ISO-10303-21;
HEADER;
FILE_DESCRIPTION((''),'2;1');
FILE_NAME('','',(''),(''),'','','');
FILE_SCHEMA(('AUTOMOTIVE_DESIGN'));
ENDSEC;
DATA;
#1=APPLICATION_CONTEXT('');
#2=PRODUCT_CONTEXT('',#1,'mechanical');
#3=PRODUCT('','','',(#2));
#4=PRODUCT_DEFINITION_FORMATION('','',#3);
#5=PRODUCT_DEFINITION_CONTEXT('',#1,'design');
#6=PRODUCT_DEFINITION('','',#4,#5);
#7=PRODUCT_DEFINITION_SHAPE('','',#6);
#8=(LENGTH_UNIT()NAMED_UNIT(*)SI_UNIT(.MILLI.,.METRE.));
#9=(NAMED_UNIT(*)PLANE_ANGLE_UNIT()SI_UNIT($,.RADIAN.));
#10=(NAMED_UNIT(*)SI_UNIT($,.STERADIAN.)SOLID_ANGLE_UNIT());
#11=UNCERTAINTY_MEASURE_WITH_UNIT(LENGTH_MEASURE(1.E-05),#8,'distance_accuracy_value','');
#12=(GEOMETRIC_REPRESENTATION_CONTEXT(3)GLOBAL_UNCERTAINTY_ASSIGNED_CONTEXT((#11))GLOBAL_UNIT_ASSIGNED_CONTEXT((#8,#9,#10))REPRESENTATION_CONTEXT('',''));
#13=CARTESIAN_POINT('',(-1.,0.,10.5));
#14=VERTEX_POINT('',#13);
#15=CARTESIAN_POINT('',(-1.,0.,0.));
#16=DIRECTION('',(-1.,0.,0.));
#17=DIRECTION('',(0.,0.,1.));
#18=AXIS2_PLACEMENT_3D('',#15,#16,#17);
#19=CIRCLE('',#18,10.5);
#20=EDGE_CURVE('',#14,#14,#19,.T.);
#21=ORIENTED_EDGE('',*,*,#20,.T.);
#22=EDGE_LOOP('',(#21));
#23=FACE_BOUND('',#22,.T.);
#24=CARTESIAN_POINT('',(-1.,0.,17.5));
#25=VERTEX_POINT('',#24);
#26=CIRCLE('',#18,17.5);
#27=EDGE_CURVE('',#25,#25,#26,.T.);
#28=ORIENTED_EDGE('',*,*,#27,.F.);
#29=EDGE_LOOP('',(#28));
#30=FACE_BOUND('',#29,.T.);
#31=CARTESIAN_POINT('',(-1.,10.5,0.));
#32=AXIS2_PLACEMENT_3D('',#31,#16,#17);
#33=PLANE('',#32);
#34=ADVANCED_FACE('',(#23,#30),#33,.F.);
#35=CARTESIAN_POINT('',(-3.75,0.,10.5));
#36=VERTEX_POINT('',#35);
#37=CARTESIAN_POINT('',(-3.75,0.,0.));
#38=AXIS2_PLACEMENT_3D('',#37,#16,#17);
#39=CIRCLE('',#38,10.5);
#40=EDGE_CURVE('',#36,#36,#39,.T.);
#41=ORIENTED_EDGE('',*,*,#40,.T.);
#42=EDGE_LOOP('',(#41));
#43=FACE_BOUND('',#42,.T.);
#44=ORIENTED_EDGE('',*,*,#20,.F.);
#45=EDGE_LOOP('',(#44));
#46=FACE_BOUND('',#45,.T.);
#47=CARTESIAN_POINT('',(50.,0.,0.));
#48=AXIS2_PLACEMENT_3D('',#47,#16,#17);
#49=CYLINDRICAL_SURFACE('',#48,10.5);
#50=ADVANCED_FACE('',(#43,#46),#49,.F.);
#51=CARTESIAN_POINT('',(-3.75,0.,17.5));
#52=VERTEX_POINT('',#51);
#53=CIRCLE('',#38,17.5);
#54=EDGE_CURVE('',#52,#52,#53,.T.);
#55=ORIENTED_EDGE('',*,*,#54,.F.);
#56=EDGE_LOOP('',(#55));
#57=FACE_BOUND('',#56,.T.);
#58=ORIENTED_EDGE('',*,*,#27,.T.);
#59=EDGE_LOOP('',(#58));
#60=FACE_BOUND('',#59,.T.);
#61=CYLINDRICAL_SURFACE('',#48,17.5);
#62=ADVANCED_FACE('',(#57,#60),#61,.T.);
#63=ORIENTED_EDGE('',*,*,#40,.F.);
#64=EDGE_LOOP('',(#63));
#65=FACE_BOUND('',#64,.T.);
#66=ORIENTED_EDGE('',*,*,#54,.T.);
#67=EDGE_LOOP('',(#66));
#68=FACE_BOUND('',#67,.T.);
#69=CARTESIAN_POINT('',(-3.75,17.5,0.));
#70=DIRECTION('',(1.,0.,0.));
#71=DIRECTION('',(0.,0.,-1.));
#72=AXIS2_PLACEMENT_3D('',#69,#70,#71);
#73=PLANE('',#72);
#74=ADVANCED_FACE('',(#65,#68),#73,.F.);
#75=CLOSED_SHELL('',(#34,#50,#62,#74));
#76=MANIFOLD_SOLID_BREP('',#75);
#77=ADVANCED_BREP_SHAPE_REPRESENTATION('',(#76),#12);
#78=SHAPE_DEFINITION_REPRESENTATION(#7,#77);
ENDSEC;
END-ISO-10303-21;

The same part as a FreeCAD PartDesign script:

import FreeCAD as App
import Part
import Sketcher

V = App.Vector


def add_polygon(sketch, points):
    """Adds a closed chain of lines whose ends are joined by coincident constraints."""
    first, n = sketch.GeometryCount, len(points)
    for a, b in zip(points, points[1:] + points[:1]):
        sketch.addGeometry(Part.LineSegment(App.Vector(*a, 0), App.Vector(*b, 0)), False)
    for i in range(n):
        sketch.addConstraint(Sketcher.Constraint("Coincident", first + i, 2, first + (i + 1) % n, 1))

doc = App.newDocument("Part")
params = doc.addObject("Spreadsheet::Sheet", "Params")
for row, (alias, value) in enumerate([
    ("sketch1_height", "7 mm"),
    ("sketch1_width", "2.75 mm"),
    ("revolution_angle", "360 deg"),
], start=1):
    params.set(f"A{row}", alias)
    params.set(f"B{row}", "=" + value)
    params.setAlias(f"B{row}", alias)

body = doc.addObject("PartDesign::Body", "Body")

# Sketch on XY plane
sketch1 = doc.addObject("Sketcher::SketchObject", "Sketch")
body.addObject(sketch1)
sketch1.AttachmentSupport = (doc.XY_Plane, [""])
sketch1.MapMode = "FlatFace"
add_polygon(sketch1, [(-3.8, 17.5), (-3.8, 10.5), (-1, 10.5), (-1, 17.5)])  # lines 0-3
sketch1.addConstraint([
    Sketcher.Constraint("Vertical", 0),
    Sketcher.Constraint("Horizontal", 1),
    Sketcher.Constraint("Vertical", 2),
    Sketcher.Constraint("Horizontal", 3),
    Sketcher.Constraint("DistanceY", 0, 2, 0, 1, 7.0),
    Sketcher.Constraint("DistanceX", 1, 2, -1, 1, 1.0),
    Sketcher.Constraint("DistanceX", 1, 1, 1, 2, 2.75),
    Sketcher.Constraint("DistanceY", -1, 1, 0, 2, 10.5),
])
sketch1.setExpression("Constraints[8]", "Params.sketch1_height")
sketch1.setExpression("Constraints[10]", "Params.sketch1_width")
revolution = doc.addObject("PartDesign::Revolution", "Revolution")
body.addObject(revolution)
revolution.Profile = sketch1
revolution.ReferenceAxis = (sketch1, ["H_Axis"])
revolution.setExpression("Angle", "Params.revolution_angle")

doc.recompute()
